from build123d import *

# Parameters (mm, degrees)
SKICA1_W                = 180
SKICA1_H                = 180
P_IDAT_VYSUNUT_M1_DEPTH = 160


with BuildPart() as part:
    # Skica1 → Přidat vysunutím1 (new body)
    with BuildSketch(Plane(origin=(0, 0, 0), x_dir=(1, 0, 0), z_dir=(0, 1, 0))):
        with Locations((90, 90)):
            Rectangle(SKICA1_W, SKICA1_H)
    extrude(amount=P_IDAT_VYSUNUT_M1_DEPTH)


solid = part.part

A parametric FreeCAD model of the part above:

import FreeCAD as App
import Part
import Sketcher


def add_polygon(sketch, points):
    """Adds a closed chain of lines whose ends are joined by coincident constraints."""
    first, n = sketch.GeometryCount, len(points)
    for a, b in zip(points, points[1:] + points[:1]):
        sketch.addGeometry(Part.LineSegment(App.Vector(*a, 0), App.Vector(*b, 0)), False)
    for i in range(n):
        sketch.addConstraint(Sketcher.Constraint("Coincident", first + i, 2, first + (i + 1) % n, 1))

doc = App.newDocument("Part")
body = doc.addObject("PartDesign::Body", "Body")

sketch1 = body.newObject("Sketcher::SketchObject", "Sketch")
sketch1.AttachmentSupport = (doc.getObject("XZ_Plane"), [""])
sketch1.MapMode = "FlatFace"
add_polygon(sketch1, [(0, -180), (0, 0), (180, 0), (180, -180)])
sketch1.addConstraint([
    Sketcher.Constraint("Vertical", 0),
    Sketcher.Constraint("Horizontal", 1),
    Sketcher.Constraint("Vertical", 2),
    Sketcher.Constraint("Horizontal", 3),
    Sketcher.Constraint("Coincident", 0, 2, -1, 1),
    Sketcher.Constraint("Equal", 3, 0),
    Sketcher.Constraint("DistanceX", 1, 1, 1, 2, 180.0),
])
pad1 = body.newObject("PartDesign::Pad", "Pad")
pad1.Profile = sketch1
pad1.Length = 160
pad1.Reversed = True

doc.recompute()
